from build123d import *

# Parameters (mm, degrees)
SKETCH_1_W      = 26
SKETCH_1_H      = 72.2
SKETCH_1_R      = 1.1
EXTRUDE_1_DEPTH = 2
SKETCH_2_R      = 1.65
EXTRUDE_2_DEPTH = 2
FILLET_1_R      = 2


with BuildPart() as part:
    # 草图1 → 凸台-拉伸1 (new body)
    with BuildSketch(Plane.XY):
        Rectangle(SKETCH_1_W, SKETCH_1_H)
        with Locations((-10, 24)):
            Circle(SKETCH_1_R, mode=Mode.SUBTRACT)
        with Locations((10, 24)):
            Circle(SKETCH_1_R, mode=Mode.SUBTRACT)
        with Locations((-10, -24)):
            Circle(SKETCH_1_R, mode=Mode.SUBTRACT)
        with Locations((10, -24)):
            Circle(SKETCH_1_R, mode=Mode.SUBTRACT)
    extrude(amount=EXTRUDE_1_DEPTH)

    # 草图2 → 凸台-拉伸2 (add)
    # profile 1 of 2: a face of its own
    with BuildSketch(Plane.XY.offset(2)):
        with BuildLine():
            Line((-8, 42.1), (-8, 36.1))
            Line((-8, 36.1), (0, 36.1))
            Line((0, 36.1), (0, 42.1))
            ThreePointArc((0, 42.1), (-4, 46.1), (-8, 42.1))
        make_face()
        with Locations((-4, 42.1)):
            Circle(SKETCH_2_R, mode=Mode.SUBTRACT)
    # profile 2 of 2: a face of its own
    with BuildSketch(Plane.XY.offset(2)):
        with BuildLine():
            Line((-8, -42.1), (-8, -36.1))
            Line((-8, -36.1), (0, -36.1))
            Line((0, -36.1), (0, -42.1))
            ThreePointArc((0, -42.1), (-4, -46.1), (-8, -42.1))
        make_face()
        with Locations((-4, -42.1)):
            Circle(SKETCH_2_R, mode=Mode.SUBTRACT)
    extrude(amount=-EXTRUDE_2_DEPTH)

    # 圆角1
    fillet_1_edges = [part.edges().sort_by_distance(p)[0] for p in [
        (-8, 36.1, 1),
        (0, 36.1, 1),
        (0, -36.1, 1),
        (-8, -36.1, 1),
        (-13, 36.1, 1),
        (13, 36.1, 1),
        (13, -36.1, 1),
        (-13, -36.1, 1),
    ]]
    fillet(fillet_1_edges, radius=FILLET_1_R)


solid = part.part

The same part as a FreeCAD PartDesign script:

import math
import FreeCAD as App
import Part
import Sketcher
Q = App.Units.Quantity


def edges_at(feature, points):
    """Names of the edges that pass closest to the given points."""
    edges = feature.Shape.Edges
    near = lambda p: min(range(len(edges)), key=lambda i: edges[i].distToShape(Part.Vertex(*p))[0])
    return sorted({f"Edge{near(p) + 1}" for p in points})


def add_polygon(sketch, points):
    """Adds a closed chain of lines whose ends are joined by coincident constraints."""
    first, n = sketch.GeometryCount, len(points)
    for a, b in zip(points, points[1:] + points[:1]):
        sketch.addGeometry(Part.LineSegment(App.Vector(*a, 0), App.Vector(*b, 0)), False)
    for i in range(n):
        sketch.addConstraint(Sketcher.Constraint("Coincident", first + i, 2, first + (i + 1) % n, 1))

doc = App.newDocument("Part")
body = doc.addObject("PartDesign::Body", "Body")

# Sketch on XY plane
sketch1 = doc.addObject("Sketcher::SketchObject", "Sketch")
body.addObject(sketch1)
sketch1.AttachmentSupport = (doc.XY_Plane, [""])
sketch1.MapMode = "FlatFace"
add_polygon(sketch1, [(-13, 36.1), (-13, -36.1), (13, -36.1), (13, 36.1)])  # lines 0-3
sketch1.addGeometry(Part.Circle(App.Vector(-10, -24, 0), App.Vector(0, 0, 1), 1.1), False)  # 4
sketch1.addGeometry(Part.Circle(App.Vector(10, -24, 0), App.Vector(0, 0, 1), 1.1), False)  # 5
sketch1.addGeometry(Part.Circle(App.Vector(-10, 24, 0), App.Vector(0, 0, 1), 1.1), False)  # 6
sketch1.addGeometry(Part.Circle(App.Vector(10, 24, 0), App.Vector(0, 0, 1), 1.1), False)  # 7
sketch1.addConstraint([
    Sketcher.Constraint("Vertical", 0),
    Sketcher.Constraint("Horizontal", 1),
    Sketcher.Constraint("Vertical", 2),
    Sketcher.Constraint("Horizontal", 3),
    Sketcher.Constraint("Equal", 4, 5),
    Sketcher.Constraint("Equal", 5, 6),
    Sketcher.Constraint("Equal", 6, 7),
    Sketcher.Constraint("Symmetric", 5, 3, 6, 3, -1, 1),
    Sketcher.Constraint("Symmetric", 4, 3, 7, 3, -1, 1),
    Sketcher.Constraint("Symmetric", 0, 2, 2, 2, -1, 1),
    Sketcher.Constraint("Symmetric", 4, 3, 5, 3, -2),
    Sketcher.Constraint("Diameter", 4, Q("2.2 mm")),
    Sketcher.Constraint("DistanceX", 1, 1, 1, 2, Q("26 mm")),
    Sketcher.Constraint("DistanceY", 0, 2, 0, 1, Q("72.2 mm")),
    Sketcher.Constraint("DistanceX", 4, 3, -1, 1, Q("10 mm")),
    Sketcher.Constraint("DistanceY", 4, 3, -1, 1, Q("24 mm")),
])
pad1 = doc.addObject("PartDesign::Pad", "Pad")
body.addObject(pad1)
pad1.Profile = sketch1
pad1.Length = 2

# Sketch on XY plane
sketch2 = doc.addObject("Sketcher::SketchObject", "Sketch001")
body.addObject(sketch2)
sketch2.AttachmentSupport = (doc.XY_Plane, [""])
sketch2.MapMode = "FlatFace"
sketch2.AttachmentOffset = App.Placement(App.Vector(0, 0, 2), App.Rotation())
sketch2.addGeometry([
    Part.LineSegment(App.Vector(-8, 42.1, 0), App.Vector(-8, 36.1, 0)),  # 0
    Part.LineSegment(App.Vector(-8, 36.1, 0), App.Vector(0, 36.1, 0)),  # 1
    Part.LineSegment(App.Vector(0, 36.1, 0), App.Vector(0, 42.1, 0)),  # 2
    Part.ArcOfCircle(Part.Circle(App.Vector(-4, 42.1, 0), App.Vector(0, 0, 1), 4), math.radians(0), math.radians(180)),  # 3
    Part.Circle(App.Vector(-4, 42.1, 0), App.Vector(0, 0, 1), 1.65),  # 4
    Part.LineSegment(App.Vector(-8, -36.1, 0), App.Vector(-8, -42.1, 0)),  # 5
    Part.ArcOfCircle(Part.Circle(App.Vector(-4, -42.1, 0), App.Vector(0, 0, 1), 4), math.radians(180), math.radians(360)),  # 6
    Part.LineSegment(App.Vector(0, -42.1, 0), App.Vector(0, -36.1, 0)),  # 7
    Part.LineSegment(App.Vector(0, -36.1, 0), App.Vector(-8, -36.1, 0)),  # 8
    Part.Circle(App.Vector(-4, -42.1, 0), App.Vector(0, 0, 1), 1.65),  # 9
], False)
sketch2.addConstraint([
    Sketcher.Constraint("Coincident", 0, 2, 1, 1),
    Sketcher.Constraint("Coincident", 1, 2, 2, 1),
    Sketcher.Constraint("Tangent", 2, 2, 3, 1),
    Sketcher.Constraint("Tangent", 3, 2, 0, 1),
    Sketcher.Constraint("Tangent", 5, 2, 6, 1),
    Sketcher.Constraint("Tangent", 6, 2, 7, 1),
    Sketcher.Constraint("Coincident", 7, 2, 8, 1),
    Sketcher.Constraint("Coincident", 8, 2, 5, 1),
    Sketcher.Constraint("Vertical", 0),
    Sketcher.Constraint("Horizontal", 1),
    Sketcher.Constraint("Vertical", 2),
    Sketcher.Constraint("Vertical", 5),
    Sketcher.Constraint("Vertical", 7),
    Sketcher.Constraint("Horizontal", 8),
    Sketcher.Constraint("Coincident", 4, 3, 3, 3),
    Sketcher.Constraint("Coincident", 9, 3, 6, 3),
    Sketcher.Constraint("Equal", 3, 6),
    Sketcher.Constraint("Equal", 4, 9),
    Sketcher.Constraint("Symmetric", 2, 2, 6, 2, -1, 1),
    Sketcher.Constraint("Symmetric", 1, 2, 7, 2, -1),
    Sketcher.Constraint("Radius", 3, Q("4 mm")),
    Sketcher.Constraint("Diameter", 4, Q("3.3 mm")),
    Sketcher.Constraint("DistanceY", 0, 2, 0, 1, Q("6 mm")),
    Sketcher.Constraint("DistanceY", -1, 1, 3, 3, Q("42.1 mm")),
])
pad2 = doc.addObject("PartDesign::Pad", "Pad001")
body.addObject(pad2)
pad2.Profile = sketch2
pad2.Length = 2
pad2.Reversed = True
doc.recompute()

fillet = doc.addObject("PartDesign::Fillet", "Fillet")
body.addObject(fillet)
fillet.Base = (pad2, edges_at(pad2, [
    (-8, 36.1, 1),
    (0, 36.1, 1),
    (0, -36.1, 1),
    (-8, -36.1, 1),
    (-13, 36.1, 1),
    (13, 36.1, 1),
    (13, -36.1, 1),
    (-13, -36.1, 1),
]))
fillet.Radius = 2

doc.recompute()
